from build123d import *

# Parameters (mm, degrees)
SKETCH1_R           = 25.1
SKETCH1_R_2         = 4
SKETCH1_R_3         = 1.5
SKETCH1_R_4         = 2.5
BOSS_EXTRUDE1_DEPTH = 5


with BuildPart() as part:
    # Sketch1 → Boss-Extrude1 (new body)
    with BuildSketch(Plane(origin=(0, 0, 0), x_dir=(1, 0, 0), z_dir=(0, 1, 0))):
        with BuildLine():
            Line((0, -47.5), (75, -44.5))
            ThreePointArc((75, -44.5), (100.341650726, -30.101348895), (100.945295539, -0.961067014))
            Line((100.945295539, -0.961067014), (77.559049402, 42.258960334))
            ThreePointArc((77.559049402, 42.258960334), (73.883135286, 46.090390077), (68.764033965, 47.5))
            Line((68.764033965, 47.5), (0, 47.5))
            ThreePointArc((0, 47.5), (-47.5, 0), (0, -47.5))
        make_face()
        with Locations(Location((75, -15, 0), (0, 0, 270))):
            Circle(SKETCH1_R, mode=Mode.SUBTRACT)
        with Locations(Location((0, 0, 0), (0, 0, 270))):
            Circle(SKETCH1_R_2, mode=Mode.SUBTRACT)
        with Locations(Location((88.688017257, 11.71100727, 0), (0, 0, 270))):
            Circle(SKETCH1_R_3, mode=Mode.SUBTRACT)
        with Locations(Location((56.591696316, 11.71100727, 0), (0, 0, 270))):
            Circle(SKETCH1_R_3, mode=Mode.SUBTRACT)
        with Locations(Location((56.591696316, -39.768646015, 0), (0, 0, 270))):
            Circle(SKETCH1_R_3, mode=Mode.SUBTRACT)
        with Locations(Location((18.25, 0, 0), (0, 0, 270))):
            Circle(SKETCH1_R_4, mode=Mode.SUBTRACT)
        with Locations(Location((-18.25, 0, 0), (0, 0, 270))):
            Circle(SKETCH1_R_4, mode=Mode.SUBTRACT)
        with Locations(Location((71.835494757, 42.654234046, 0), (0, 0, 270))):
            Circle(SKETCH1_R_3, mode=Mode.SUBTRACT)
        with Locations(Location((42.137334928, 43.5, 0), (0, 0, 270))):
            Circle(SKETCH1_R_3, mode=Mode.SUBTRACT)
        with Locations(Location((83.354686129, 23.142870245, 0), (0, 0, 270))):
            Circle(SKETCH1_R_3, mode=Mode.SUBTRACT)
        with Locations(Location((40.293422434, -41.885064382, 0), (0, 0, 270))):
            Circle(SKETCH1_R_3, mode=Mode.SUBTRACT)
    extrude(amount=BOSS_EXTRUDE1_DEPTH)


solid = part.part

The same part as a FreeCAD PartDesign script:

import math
import FreeCAD as App
import Part
import Sketcher
from FreeCAD import Vector

doc = App.newDocument("Part")
body = doc.addObject("PartDesign::Body", "Body")

sketch1 = body.newObject("Sketcher::SketchObject", "Sketch")
sketch1.AttachmentSupport = (doc.getObject("XZ_Plane"), [""])
sketch1.MapMode = "FlatFace"
sketch1.addGeometry([
    Part.LineSegment(Vector(0, 47.5, 0), Vector(75, 44.5, 0)),
    Part.ArcOfCircle(Part.Circle(Vector(75, 15, 0), Vector(0, 0, 1), 29.5), math.radians(-28), math.radians(90)),
    Part.LineSegment(Vector(100.9, 1, 0), Vector(77.6, -42.3, 0)),
    Part.ArcOfCircle(Part.Circle(Vector(68.8, -37.5, 0), Vector(0, 0, 1), 10), math.radians(-90), math.radians(-28)),
    Part.LineSegment(Vector(68.8, -47.5, 0), Vector(0, -47.5, 0)),
    Part.ArcOfCircle(Part.Circle(Vector(0, 0, 0), Vector(0, 0, 1), 47.5), math.radians(90), math.radians(270)),
    Part.Circle(Vector(-18.2, 0, 0), Vector(0, 0, 1), 2.5),
    Part.Circle(Vector(0, 0, 0), Vector(0, 0, 1), 4),
    Part.Circle(Vector(18.2, 0, 0), Vector(0, 0, 1), 2.5),
    Part.Circle(Vector(40.3, 41.9, 0), Vector(0, 0, 1), 1.5),
    Part.Circle(Vector(56.6, 39.8, 0), Vector(0, 0, 1), 1.5),
    Part.Circle(Vector(75, 15, 0), Vector(0, 0, 1), 25.1),
    Part.Circle(Vector(56.6, -11.7, 0), Vector(0, 0, 1), 1.5),
    Part.Circle(Vector(88.7, -11.7, 0), Vector(0, 0, 1), 1.5),
    Part.Circle(Vector(42.1, -43.5, 0), Vector(0, 0, 1), 1.5),
    Part.Circle(Vector(83.4, -23.1, 0), Vector(0, 0, 1), 1.5),
    Part.Circle(Vector(71.8, -42.7, 0), Vector(0, 0, 1), 1.5),
], False)
sketch1.addConstraint([
    Sketcher.Constraint("Coincident", 0, 2, 1, 2),
    Sketcher.Constraint("Tangent", 1, 1, 2, 1),
    Sketcher.Constraint("Tangent", 2, 2, 3, 2),
    Sketcher.Constraint("Tangent", 3, 1, 4, 1),
    Sketcher.Constraint("Tangent", 4, 2, 5, 2),
    Sketcher.Constraint("Coincident", 5, 1, 0, 1),
    Sketcher.Constraint("Horizontal", 4),
    Sketcher.Constraint("Coincident", 5, 3, -1, 1),
    Sketcher.Constraint("Coincident", 7, 3, -1, 1),
    Sketcher.Constraint("Coincident", 11, 3, 1, 3),
    Sketcher.Constraint("Equal", 6, 8),
    Sketcher.Constraint("Equal", 9, 10),
    Sketcher.Constraint("Equal", 10, 12),
    Sketcher.Constraint("Equal", 12, 13),
    Sketcher.Constraint("Equal", 13, 14),
    Sketcher.Constraint("Equal", 14, 15),
    Sketcher.Constraint("Equal", 15, 16),
    Sketcher.Constraint("Symmetric", 6, 3, 8, 3, -1, 1),
    Sketcher.Constraint("PointOnObject", 6, 3, -1),
    Sketcher.Constraint("PointOnObject", 5, 1, -2),
    Sketcher.Constraint("Horizontal", 12, 3, 13, 3),
    Sketcher.Constraint("Vertical", 10, 3, 12, 3),
    Sketcher.Constraint("Vertical", 11, 3, 0, 2),
    Sketcher.Constraint("Diameter", 6, 5.0),
    Sketcher.Constraint("Diameter", 7, 8.0),
    Sketcher.Constraint("Diameter", 9, 3.0),
    Sketcher.Constraint("Radius", 3, 10.0),
    Sketcher.Constraint("Diameter", 11, 50.2),
    Sketcher.Constraint("Radius", 1, 29.5),
    Sketcher.Constraint("Radius", 5, 47.5),
    Sketcher.Constraint("DistanceX", -1, 1, 1, 3, 75.0),
    Sketcher.Constraint("DistanceY", -1, 1, 1, 3, 15.0),
    Sketcher.Constraint("DistanceY", 14, 3, 3, 3, 6.0),
    Sketcher.Constraint("DistanceX", 6, 3, 8, 3, 36.5),
    Sketcher.Constraint("DistanceX", 14, 3, 3, 3, 26.626699),
    Sketcher.Constraint("DistanceX", 12, 3, 16, 3, 15.243798),
    Sketcher.Constraint("DistanceX", 12, 3, 1, 1, 44.353599),
    Sketcher.Constraint("DistanceX", 4, 2, 4, 1, 68.764034),
    Sketcher.Constraint("DistanceY", 15, 3, -1, 1, 23.14287),
    Sketcher.Constraint("DistanceY", 10, 3, 9, 3, 2.116418),
    Sketcher.Constraint("DistanceX", 12, 3, 13, 3, 32.096321),
    Sketcher.Constraint("DistanceX", 15, 3, 13, 3, 5.333331),
    Sketcher.Constraint("DistanceX", -1, 1, 9, 3, 40.293422),
    Sketcher.Constraint("DistanceY", -1, 1, 9, 3, 41.885064),
    Sketcher.Constraint("DistanceY", 12, 3, -1, 1, 11.711007),
    Sketcher.Constraint("DistanceY", 16, 3, -1, 1, 42.654234),
])
pad1 = body.newObject("PartDesign::Pad", "Pad")
pad1.Profile = sketch1
pad1.Length = 5
pad1.Reversed = True

doc.recompute()
